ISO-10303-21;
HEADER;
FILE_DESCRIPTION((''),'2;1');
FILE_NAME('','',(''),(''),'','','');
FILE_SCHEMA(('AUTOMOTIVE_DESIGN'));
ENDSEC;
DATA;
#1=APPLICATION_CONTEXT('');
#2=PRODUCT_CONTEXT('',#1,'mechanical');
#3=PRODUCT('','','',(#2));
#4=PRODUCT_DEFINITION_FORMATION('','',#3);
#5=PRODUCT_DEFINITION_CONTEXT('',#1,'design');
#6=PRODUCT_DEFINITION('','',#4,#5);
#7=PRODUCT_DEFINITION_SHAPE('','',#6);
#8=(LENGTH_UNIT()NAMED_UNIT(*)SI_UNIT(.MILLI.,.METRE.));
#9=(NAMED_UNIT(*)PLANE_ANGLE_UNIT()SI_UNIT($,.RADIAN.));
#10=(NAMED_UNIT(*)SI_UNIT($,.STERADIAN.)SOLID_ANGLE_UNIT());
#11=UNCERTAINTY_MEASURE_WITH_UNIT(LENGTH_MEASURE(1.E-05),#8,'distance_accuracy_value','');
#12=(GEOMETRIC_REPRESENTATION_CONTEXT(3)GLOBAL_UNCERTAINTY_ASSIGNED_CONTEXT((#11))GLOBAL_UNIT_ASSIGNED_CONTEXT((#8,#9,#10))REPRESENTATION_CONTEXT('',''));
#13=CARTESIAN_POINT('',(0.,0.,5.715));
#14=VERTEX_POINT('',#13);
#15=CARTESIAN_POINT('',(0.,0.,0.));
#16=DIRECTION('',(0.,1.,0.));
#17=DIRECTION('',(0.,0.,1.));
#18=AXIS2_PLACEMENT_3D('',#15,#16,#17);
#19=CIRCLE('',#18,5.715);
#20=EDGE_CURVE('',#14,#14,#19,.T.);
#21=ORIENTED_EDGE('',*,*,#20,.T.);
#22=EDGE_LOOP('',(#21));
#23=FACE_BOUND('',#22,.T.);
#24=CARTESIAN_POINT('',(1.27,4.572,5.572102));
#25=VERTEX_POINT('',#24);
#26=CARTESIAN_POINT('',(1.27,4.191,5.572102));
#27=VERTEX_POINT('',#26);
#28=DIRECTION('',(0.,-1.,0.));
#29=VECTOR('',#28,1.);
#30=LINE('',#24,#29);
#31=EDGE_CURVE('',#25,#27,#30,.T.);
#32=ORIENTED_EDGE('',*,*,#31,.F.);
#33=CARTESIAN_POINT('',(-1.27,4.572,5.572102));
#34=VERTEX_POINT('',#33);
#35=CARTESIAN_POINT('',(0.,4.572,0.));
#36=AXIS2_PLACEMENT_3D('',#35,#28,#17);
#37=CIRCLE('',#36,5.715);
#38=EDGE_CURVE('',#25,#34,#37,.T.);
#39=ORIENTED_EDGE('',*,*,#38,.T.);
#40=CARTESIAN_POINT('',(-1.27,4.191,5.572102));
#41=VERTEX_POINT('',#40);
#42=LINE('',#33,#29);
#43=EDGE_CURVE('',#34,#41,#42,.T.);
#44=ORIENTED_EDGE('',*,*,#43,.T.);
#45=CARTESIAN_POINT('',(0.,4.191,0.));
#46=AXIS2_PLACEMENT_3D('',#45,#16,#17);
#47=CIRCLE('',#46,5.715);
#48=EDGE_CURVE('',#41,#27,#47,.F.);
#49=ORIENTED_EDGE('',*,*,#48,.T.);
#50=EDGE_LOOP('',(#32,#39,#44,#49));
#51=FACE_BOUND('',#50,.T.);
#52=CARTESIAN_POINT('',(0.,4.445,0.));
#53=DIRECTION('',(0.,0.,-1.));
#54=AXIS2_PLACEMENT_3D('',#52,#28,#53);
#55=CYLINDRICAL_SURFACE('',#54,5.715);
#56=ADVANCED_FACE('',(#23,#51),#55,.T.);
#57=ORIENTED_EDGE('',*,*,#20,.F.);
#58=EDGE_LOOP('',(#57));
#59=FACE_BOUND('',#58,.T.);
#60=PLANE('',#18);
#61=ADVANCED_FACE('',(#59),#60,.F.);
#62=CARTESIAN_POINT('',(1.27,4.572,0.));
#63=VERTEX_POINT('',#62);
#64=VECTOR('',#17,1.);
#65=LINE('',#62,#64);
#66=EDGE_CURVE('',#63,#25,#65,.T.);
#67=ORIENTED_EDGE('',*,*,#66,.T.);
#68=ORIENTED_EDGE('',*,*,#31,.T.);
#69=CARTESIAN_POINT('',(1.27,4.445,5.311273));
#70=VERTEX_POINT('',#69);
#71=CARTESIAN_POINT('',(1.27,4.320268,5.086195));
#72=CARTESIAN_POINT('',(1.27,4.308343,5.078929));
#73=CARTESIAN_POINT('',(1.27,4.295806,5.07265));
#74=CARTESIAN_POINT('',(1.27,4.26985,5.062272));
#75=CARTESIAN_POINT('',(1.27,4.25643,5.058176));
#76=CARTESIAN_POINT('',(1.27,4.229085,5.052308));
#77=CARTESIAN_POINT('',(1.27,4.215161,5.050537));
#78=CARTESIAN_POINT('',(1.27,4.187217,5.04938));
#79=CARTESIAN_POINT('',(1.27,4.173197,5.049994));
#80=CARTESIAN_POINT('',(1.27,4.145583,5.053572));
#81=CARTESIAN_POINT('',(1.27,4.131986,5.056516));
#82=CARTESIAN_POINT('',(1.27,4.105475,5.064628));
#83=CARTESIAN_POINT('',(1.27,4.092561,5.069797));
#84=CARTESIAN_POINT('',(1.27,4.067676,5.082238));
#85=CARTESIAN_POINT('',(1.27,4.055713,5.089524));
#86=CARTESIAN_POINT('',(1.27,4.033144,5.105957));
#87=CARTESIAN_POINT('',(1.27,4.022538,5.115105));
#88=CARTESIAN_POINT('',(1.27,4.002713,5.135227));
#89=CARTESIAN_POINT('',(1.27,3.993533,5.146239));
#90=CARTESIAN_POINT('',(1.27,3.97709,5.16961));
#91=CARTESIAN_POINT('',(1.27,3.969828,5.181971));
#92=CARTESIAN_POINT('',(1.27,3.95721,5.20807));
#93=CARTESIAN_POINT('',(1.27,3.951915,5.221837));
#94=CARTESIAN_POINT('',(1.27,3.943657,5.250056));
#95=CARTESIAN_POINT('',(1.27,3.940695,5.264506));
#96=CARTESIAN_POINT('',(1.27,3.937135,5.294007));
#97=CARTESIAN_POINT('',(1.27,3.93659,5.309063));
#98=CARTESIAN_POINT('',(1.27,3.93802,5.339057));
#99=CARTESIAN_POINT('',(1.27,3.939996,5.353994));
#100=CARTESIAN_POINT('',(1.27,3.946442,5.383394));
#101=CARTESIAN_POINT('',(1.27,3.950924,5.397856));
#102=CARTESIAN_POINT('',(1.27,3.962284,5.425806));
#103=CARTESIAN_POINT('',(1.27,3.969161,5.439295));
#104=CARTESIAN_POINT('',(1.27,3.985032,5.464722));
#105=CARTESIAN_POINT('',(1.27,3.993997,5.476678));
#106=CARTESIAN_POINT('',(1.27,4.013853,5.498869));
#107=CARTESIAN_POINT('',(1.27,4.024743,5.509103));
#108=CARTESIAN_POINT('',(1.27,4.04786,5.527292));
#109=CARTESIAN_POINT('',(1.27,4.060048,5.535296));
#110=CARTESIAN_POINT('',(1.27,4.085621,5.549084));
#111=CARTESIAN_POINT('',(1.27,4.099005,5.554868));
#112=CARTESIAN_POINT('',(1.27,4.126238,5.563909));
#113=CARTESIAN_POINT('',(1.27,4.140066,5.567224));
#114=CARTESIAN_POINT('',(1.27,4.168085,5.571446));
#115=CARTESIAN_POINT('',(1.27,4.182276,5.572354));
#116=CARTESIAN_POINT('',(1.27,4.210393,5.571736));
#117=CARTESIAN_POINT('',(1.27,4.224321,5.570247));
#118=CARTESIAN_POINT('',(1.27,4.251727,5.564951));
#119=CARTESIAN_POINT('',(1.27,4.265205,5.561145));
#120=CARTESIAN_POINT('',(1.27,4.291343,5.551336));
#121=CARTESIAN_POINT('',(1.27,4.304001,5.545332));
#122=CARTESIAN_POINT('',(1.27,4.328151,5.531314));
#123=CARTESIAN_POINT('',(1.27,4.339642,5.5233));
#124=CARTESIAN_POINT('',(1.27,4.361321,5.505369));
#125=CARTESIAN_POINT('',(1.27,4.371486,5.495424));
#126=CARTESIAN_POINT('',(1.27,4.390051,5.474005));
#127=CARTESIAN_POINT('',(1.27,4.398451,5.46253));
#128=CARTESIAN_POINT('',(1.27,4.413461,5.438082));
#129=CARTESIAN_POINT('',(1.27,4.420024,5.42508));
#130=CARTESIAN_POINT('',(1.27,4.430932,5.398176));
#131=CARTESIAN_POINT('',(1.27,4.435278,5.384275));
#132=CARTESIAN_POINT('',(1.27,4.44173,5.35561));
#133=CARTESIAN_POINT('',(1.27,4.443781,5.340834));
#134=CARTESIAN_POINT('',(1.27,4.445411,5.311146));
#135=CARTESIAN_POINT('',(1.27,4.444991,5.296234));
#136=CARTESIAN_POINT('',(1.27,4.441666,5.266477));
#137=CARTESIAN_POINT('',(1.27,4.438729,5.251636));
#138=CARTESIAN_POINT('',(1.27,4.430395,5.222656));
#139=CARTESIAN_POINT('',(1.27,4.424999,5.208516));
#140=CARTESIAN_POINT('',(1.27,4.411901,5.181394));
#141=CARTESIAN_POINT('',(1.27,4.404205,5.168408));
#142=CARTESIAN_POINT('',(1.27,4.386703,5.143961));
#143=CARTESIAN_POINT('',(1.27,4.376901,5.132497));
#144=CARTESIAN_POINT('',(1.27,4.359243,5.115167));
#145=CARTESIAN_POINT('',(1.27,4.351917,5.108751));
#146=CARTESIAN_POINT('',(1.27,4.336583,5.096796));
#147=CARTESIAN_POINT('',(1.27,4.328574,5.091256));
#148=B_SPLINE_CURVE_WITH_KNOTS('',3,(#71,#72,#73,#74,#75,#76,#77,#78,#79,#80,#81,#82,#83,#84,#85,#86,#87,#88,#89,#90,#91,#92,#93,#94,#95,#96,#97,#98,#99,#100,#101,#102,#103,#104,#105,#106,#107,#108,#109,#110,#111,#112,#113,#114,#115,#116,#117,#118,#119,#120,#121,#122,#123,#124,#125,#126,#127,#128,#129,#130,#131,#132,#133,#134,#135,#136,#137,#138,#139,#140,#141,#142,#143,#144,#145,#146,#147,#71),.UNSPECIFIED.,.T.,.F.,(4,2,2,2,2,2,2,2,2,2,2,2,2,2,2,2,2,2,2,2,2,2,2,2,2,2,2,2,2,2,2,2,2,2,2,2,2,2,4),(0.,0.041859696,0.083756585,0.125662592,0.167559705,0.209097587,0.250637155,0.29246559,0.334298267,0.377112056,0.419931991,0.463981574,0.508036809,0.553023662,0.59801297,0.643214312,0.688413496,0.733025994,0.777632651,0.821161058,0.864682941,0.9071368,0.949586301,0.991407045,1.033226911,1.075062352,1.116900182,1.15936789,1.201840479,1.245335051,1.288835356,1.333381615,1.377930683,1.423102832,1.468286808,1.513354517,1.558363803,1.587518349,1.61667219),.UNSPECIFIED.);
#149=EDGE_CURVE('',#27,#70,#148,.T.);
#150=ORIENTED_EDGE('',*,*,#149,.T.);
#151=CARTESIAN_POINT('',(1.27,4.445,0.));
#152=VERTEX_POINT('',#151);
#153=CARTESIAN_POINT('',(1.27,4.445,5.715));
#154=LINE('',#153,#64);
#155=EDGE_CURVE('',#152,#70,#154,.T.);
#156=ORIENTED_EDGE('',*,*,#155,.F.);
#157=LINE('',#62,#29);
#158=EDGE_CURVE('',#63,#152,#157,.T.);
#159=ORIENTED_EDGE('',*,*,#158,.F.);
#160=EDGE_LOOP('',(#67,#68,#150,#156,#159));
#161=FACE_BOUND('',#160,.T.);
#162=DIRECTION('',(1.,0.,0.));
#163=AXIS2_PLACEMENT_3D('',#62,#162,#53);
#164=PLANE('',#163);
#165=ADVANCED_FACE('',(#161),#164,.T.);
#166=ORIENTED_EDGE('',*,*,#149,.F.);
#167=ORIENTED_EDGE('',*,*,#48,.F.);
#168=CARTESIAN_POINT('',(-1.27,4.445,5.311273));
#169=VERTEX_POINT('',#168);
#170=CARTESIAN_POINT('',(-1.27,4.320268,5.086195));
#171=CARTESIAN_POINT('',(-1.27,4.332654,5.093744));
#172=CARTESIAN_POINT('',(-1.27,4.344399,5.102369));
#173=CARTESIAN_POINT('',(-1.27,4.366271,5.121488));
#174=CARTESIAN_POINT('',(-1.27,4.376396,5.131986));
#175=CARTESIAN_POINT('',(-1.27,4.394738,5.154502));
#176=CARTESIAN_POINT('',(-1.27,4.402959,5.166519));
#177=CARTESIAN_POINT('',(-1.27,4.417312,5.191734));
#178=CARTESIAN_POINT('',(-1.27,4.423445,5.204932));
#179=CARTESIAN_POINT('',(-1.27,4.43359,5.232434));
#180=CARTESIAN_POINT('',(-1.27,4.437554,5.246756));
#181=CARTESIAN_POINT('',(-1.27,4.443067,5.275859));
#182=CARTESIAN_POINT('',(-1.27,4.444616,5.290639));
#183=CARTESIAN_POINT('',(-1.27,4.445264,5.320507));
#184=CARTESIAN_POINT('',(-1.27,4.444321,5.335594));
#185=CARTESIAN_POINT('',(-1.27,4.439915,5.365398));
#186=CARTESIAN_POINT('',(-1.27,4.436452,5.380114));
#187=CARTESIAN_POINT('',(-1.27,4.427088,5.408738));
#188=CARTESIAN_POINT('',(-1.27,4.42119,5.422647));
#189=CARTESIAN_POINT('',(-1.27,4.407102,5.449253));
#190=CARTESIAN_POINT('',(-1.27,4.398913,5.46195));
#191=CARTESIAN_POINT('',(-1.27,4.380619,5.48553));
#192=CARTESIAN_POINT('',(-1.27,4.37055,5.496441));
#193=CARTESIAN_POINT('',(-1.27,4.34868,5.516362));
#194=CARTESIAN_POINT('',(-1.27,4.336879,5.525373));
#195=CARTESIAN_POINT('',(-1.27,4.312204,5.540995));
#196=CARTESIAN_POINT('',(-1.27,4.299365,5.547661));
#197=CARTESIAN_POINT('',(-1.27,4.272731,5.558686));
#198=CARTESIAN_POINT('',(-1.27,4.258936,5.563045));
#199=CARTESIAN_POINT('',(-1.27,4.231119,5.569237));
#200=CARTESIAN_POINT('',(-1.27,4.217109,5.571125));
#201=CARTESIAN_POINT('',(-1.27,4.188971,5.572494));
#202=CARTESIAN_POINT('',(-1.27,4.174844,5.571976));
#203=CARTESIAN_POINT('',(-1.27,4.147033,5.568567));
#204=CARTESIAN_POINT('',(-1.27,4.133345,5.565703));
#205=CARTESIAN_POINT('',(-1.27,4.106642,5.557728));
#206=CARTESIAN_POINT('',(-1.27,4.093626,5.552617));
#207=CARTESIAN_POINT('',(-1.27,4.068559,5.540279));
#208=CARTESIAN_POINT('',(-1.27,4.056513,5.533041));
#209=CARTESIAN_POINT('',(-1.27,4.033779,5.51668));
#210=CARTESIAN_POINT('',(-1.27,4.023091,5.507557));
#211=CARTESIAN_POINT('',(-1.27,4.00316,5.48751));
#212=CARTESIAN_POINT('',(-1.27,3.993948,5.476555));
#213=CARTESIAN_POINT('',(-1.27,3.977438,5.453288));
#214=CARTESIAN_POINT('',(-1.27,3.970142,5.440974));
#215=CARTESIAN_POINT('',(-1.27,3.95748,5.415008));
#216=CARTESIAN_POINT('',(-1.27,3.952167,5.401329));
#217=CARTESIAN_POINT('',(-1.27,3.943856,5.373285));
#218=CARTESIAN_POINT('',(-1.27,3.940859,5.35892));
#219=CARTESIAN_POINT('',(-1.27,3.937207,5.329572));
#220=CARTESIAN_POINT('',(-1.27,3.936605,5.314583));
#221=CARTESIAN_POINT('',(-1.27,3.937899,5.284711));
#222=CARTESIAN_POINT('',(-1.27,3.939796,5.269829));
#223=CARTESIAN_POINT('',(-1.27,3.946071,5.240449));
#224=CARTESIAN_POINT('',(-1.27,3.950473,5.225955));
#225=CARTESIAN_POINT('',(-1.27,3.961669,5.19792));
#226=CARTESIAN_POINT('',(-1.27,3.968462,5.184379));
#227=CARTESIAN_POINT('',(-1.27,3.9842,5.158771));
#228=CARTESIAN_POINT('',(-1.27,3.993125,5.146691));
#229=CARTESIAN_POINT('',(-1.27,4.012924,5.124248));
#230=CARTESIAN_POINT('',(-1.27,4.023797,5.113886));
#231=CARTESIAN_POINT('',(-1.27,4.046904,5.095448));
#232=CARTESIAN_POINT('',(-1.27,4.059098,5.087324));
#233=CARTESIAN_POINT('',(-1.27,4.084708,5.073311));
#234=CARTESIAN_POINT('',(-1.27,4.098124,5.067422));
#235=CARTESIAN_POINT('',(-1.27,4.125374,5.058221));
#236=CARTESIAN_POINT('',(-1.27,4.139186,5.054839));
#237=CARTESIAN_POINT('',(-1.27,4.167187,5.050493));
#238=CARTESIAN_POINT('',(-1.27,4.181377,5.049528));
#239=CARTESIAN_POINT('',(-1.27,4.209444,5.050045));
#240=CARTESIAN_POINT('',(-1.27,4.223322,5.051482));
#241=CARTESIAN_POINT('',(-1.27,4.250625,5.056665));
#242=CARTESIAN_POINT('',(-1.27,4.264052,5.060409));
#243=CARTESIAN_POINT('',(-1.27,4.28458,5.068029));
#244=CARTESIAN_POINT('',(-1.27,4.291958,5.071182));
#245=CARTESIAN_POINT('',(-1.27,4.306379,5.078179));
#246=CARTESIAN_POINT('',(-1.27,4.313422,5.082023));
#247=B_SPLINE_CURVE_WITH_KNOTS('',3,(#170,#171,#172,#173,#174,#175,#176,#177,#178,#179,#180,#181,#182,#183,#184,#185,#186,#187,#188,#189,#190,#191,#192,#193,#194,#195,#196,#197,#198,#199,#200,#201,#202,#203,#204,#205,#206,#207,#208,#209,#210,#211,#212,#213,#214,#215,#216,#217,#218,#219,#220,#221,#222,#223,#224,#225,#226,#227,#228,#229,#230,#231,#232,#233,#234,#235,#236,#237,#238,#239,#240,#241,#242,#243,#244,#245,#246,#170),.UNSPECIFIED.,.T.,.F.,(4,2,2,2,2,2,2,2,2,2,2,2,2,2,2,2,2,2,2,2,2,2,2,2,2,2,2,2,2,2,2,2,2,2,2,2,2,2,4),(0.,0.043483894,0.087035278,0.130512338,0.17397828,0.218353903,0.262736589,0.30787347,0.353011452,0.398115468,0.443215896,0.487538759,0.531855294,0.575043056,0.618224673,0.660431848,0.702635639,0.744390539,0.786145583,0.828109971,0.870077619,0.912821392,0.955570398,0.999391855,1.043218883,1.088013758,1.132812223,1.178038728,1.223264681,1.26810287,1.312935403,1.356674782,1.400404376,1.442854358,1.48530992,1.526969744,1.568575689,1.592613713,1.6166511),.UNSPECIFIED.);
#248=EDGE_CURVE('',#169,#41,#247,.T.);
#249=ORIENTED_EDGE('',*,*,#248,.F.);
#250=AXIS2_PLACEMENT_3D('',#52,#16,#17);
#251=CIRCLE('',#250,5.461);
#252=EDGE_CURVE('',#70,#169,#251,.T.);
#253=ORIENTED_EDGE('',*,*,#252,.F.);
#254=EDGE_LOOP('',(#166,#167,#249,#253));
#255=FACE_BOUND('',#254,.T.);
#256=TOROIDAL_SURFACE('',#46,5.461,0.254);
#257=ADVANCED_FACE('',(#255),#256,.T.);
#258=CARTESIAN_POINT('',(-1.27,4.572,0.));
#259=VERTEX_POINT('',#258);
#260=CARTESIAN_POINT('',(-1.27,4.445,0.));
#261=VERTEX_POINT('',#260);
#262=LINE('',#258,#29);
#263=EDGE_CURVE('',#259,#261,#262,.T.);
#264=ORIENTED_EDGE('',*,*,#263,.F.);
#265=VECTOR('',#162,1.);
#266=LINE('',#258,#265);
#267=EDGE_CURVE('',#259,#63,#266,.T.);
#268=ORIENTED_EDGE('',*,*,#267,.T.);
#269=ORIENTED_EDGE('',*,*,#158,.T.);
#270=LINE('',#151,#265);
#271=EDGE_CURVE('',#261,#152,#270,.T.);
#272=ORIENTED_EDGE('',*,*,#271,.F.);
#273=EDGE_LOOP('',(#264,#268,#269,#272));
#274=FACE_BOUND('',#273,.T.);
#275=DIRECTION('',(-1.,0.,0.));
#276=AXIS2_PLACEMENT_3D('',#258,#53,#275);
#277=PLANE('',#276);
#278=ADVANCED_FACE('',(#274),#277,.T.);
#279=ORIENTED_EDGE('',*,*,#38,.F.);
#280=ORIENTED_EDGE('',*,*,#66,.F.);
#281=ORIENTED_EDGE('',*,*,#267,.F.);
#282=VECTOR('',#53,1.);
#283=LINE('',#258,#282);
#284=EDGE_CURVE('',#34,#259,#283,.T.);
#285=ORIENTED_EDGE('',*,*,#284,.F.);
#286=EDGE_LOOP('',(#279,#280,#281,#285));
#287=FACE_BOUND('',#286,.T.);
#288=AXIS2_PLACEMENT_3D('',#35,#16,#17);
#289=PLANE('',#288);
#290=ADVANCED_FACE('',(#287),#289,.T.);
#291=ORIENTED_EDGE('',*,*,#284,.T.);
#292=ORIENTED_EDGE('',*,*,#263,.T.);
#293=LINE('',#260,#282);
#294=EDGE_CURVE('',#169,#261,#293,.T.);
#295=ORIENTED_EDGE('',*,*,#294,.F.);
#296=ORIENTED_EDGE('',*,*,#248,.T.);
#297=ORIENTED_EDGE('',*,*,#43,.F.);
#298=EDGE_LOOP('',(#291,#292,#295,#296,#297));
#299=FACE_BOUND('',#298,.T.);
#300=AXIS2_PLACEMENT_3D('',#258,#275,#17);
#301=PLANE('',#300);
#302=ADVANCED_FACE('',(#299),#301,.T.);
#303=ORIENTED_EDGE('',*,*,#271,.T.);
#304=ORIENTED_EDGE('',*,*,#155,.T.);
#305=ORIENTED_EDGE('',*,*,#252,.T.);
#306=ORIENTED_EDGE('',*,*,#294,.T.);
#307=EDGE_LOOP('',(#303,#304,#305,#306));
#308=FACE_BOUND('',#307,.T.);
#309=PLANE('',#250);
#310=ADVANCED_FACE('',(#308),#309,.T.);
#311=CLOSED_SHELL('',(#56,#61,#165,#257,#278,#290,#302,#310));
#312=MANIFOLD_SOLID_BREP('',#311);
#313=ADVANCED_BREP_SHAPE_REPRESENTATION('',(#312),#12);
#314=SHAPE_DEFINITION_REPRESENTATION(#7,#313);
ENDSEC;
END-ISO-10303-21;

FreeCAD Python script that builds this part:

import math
import FreeCAD as App
import Part
import Sketcher
from FreeCAD import Vector
Q = App.Units.Quantity


def edges_at(feature, points):
    """Names of the edges that pass closest to the given points."""
    edges = feature.Shape.Edges
    near = lambda p: min(range(len(edges)), key=lambda i: edges[i].distToShape(Part.Vertex(*p))[0])
    return sorted({f"Edge{near(p) + 1}" for p in points})


def add_polygon(sketch, points):
    """Adds a closed chain of lines whose ends are joined by coincident constraints."""
    first, n = sketch.GeometryCount, len(points)
    for a, b in zip(points, points[1:] + points[:1]):
        sketch.addGeometry(Part.LineSegment(App.Vector(*a, 0), App.Vector(*b, 0)), False)
    for i in range(n):
        sketch.addConstraint(Sketcher.Constraint("Coincident", first + i, 2, first + (i + 1) % n, 1))

doc = App.newDocument("Part")
params = doc.addObject("Spreadsheet::Sheet", "Params")
for row, (alias, value) in enumerate([
    ("sketch1_diameter", "0.45 in"),
    ("pad1_length", "0.175 in"),
    ("fillet_radius", "0.01 in"),
    ("sketch2_width", "0.1 in"),
    ("sketch2_height", "0.225 in"),
    ("sketch3_width", "0.1 in"),
    ("sketch3_radius", "0.225 in"),
    ("pad2_length", "0.18 in"),
], start=1):
    params.set(f"A{row}", alias)
    params.set(f"B{row}", "=" + value)
    params.setAlias(f"B{row}", alias)

body = doc.addObject("PartDesign::Body", "Body")

# Sketch on XZ plane
sketch1 = body.newObject("Sketcher::SketchObject", "Sketch")
sketch1.AttachmentSupport = (doc.getObject("XZ_Plane"), [""])
sketch1.MapMode = "FlatFace"
sketch1.addGeometry(Part.Circle(Vector(0, 0, 0), Vector(0, 0, 1), 6), False)
sketch1.addConstraint([
    Sketcher.Constraint("Coincident", 0, 3, -1, 1),
    Sketcher.Constraint("Diameter", 0, Q("0.45 in")),
])
sketch1.setExpression("Constraints[1]", "Params.sketch1_diameter")
pad1 = body.newObject("PartDesign::Pad", "Pad")
pad1.Profile = sketch1
pad1.setExpression("Length", "Params.pad1_length")
pad1.Reversed = True
doc.recompute()

fillet = body.newObject("PartDesign::Fillet", "Fillet")
fillet.Base = (pad1, edges_at(pad1, [(0, 4.445, -5.715)]))
fillet.setExpression("Radius", "Params.fillet_radius")

# Sketch on XZ plane
sketch2 = body.newObject("Sketcher::SketchObject", "Sketch001")
sketch2.AttachmentSupport = (doc.getObject("XZ_Plane"), [""])
sketch2.MapMode = "FlatFace"
add_polygon(sketch2, [(-1.3, 5.7), (-1.3, 0), (1.3, 0), (1.3, 5.7)])  # lines 0-3
sketch2.addConstraint([
    Sketcher.Constraint("Vertical", 0),
    Sketcher.Constraint("Horizontal", 1),
    Sketcher.Constraint("Vertical", 2),
    Sketcher.Constraint("Horizontal", 3),
    Sketcher.Constraint("Symmetric", 0, 2, 1, 2, -1, 1),
    Sketcher.Constraint("DistanceX", 1, 1, 1, 2, Q("0.1 in")),
    Sketcher.Constraint("DistanceY", 0, 2, 0, 1, Q("0.225 in")),
])
sketch2.setExpression("Constraints[9]", "Params.sketch2_width")
sketch2.setExpression("Constraints[10]", "Params.sketch2_height")
pocket1 = body.newObject("PartDesign::Pocket", "Pocket")
pocket1.Profile = sketch2
pocket1.Type = "ThroughAll"

# Sketch on XZ plane
sketch3 = body.newObject("Sketcher::SketchObject", "Sketch002")
sketch3.AttachmentSupport = (doc.getObject("XZ_Plane"), [""])
sketch3.MapMode = "FlatFace"
sketch3.addGeometry([
    Part.LineSegment(Vector(-1.3, 5.6, 0), Vector(-1.3, 0, 0)),
    Part.LineSegment(Vector(-1.3, 0, 0), Vector(1.3, 0, 0)),
    Part.LineSegment(Vector(1.3, 0, 0), Vector(1.3, 5.6, 0)),
    Part.ArcOfCircle(Part.Circle(Vector(0, 0, 0), Vector(0, 0, 1), 5.7), math.radians(77), math.radians(103)),
], False)
sketch3.addConstraint([
    Sketcher.Constraint("Coincident", 0, 2, 1, 1),
    Sketcher.Constraint("Coincident", 1, 2, 2, 1),
    Sketcher.Constraint("Coincident", 2, 2, 3, 1),
    Sketcher.Constraint("Coincident", 3, 2, 0, 1),
    Sketcher.Constraint("Vertical", 0),
    Sketcher.Constraint("Horizontal", 1),
    Sketcher.Constraint("Vertical", 2),
    Sketcher.Constraint("Coincident", 3, 3, -1, 1),
    Sketcher.Constraint("Symmetric", 0, 2, 1, 2, -1, 1),
    Sketcher.Constraint("DistanceX", 1, 1, 1, 2, Q("0.1 in")),
    Sketcher.Constraint("Radius", 3, Q("0.225 in")),
])
sketch3.setExpression("Constraints[9]", "Params.sketch3_width")
sketch3.setExpression("Constraints[10]", "Params.sketch3_radius")
pad2 = body.newObject("PartDesign::Pad", "Pad001")
pad2.Profile = sketch3
pad2.setExpression("Length", "Params.pad2_length")
pad2.Reversed = True

doc.recompute()
